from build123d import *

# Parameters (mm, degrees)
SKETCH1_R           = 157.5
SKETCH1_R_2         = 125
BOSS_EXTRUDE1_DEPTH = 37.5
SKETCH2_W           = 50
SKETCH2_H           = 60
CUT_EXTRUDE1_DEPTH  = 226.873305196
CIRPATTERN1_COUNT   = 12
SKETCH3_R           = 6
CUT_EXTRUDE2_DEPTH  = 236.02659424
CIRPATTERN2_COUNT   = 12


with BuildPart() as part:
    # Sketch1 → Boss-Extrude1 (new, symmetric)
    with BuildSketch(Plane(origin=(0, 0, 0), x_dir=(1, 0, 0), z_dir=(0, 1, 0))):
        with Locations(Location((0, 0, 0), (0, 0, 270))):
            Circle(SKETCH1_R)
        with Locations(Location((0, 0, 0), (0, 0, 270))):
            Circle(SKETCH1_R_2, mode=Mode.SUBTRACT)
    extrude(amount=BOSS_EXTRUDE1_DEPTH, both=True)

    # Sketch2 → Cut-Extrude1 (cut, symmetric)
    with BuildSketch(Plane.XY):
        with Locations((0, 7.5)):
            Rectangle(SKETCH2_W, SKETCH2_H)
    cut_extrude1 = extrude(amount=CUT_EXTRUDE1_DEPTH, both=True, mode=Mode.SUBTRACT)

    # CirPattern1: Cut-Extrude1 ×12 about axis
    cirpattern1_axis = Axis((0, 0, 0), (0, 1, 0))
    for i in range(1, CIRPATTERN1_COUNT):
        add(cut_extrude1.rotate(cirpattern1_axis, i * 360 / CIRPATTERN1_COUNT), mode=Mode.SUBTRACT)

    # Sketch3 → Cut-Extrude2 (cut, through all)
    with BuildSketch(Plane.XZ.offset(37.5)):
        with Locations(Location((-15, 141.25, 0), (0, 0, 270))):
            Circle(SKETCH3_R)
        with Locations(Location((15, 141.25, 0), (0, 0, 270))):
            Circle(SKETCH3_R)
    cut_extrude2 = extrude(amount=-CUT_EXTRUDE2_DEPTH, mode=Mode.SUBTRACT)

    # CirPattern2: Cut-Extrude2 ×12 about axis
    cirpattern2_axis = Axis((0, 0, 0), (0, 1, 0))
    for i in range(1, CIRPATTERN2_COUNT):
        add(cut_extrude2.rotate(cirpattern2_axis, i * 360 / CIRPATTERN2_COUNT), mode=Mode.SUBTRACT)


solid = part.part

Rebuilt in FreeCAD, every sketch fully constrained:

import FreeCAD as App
import Part
import Sketcher


def add_polygon(sketch, points):
    """Adds a closed chain of lines whose ends are joined by coincident constraints."""
    first, n = sketch.GeometryCount, len(points)
    for a, b in zip(points, points[1:] + points[:1]):
        sketch.addGeometry(Part.LineSegment(App.Vector(*a, 0), App.Vector(*b, 0)), False)
    for i in range(n):
        sketch.addConstraint(Sketcher.Constraint("Coincident", first + i, 2, first + (i + 1) % n, 1))

doc = App.newDocument("Part")
params = doc.addObject("Spreadsheet::Sheet", "Params")
for row, (alias, value) in enumerate([
    ("sketch1_diameter", "315 mm"),
    ("sketch1_diameter2", "250 mm"),
    ("pad1_length", "75 mm"),
    ("sketch2_width", "50 mm"),
    ("sketch2_height", "60 mm"),
    ("pocket1_length", "453.74661 mm"),
    ("sketch3_diameter", "12 mm"),
], start=1):
    params.set(f"A{row}", alias)
    params.set(f"B{row}", "=" + value)
    params.setAlias(f"B{row}", alias)

body = doc.addObject("PartDesign::Body", "Body")

sketch1 = doc.addObject("Sketcher::SketchObject", "Sketch")
body.addObject(sketch1)
sketch1.AttachmentSupport = (doc.XZ_Plane, [""])
sketch1.MapMode = "FlatFace"
sketch1.addGeometry(Part.Circle(App.Vector(0, 0, 0), App.Vector(0, 0, 1), 158), False)
sketch1.addGeometry(Part.Circle(App.Vector(0, 0, 0), App.Vector(0, 0, 1), 125), False)
sketch1.addConstraint(Sketcher.Constraint("Coincident", 0, 3, -1, 1))
sketch1.addConstraint(Sketcher.Constraint("Coincident", 1, 3, -1, 1))
sketch1.addConstraint(Sketcher.Constraint("Diameter", 0, 315.0))
sketch1.addConstraint(Sketcher.Constraint("Diameter", 1, 250.0))
sketch1.setExpression("Constraints[2]", "Params.sketch1_diameter")
sketch1.setExpression("Constraints[3]", "Params.sketch1_diameter2")
pad1 = doc.addObject("PartDesign::Pad", "Pad")
body.addObject(pad1)
pad1.Profile = sketch1
pad1.setExpression("Length", "Params.pad1_length")
pad1.Midplane = True

sketch2 = doc.addObject("Sketcher::SketchObject", "Sketch001")
body.addObject(sketch2)
sketch2.AttachmentSupport = (doc.XY_Plane, [""])
sketch2.MapMode = "FlatFace"
add_polygon(sketch2, [(-25, 38), (-25, -22), (25, -22), (25, 38)])
sketch2.addConstraint(Sketcher.Constraint("Vertical", 0))
sketch2.addConstraint(Sketcher.Constraint("Horizontal", 1))
sketch2.addConstraint(Sketcher.Constraint("Vertical", 2))
sketch2.addConstraint(Sketcher.Constraint("Horizontal", 3))
sketch2.addConstraint(Sketcher.Constraint("DistanceX", 1, 1, 1, 2, 50.0))
sketch2.addConstraint(Sketcher.Constraint("DistanceY", 0, 2, 0, 1, 60.0))
sketch2.addConstraint(Sketcher.Constraint("DistanceX", 0, 2, -1, 1, 25.0))
sketch2.addConstraint(Sketcher.Constraint("DistanceY", 0, 2, -1, 1, 22.5))
sketch2.setExpression("Constraints[8]", "Params.sketch2_width")
sketch2.setExpression("Constraints[9]", "Params.sketch2_height")
pocket1 = doc.addObject("PartDesign::Pocket", "Pocket")
body.addObject(pocket1)
pocket1.Profile = sketch2
pocket1.setExpression("Length", "Params.pocket1_length")
pocket1.Midplane = True
doc.recompute()

polarpattern = doc.addObject("PartDesign::PolarPattern", "PolarPattern")
body.addObject(polarpattern)
polarpattern.Originals = [pocket1]
polarpattern.Axis = (doc.Y_Axis, [""])
polarpattern.Angle = 360
polarpattern.Occurrences = 12
body.Tip = polarpattern

sketch3 = doc.addObject("Sketcher::SketchObject", "Sketch002")
body.addObject(sketch3)
sketch3.AttachmentSupport = (doc.XZ_Plane, [""])
sketch3.MapMode = "FlatFace"
sketch3.AttachmentOffset = App.Placement(App.Vector(0, 0, 37.5), App.Rotation())
sketch3.addGeometry(Part.Circle(App.Vector(-15, 141, 0), App.Vector(0, 0, 1), 6), False)
sketch3.addGeometry(Part.Circle(App.Vector(15, 141, 0), App.Vector(0, 0, 1), 6), False)
sketch3.addConstraint(Sketcher.Constraint("Equal", 0, 1))
sketch3.addConstraint(Sketcher.Constraint("Symmetric", 0, 3, 1, 3, -2))
sketch3.addConstraint(Sketcher.Constraint("Diameter", 0, 12.0))
sketch3.addConstraint(Sketcher.Constraint("DistanceX", 0, 3, -1, 1, 15.0))
sketch3.addConstraint(Sketcher.Constraint("DistanceY", -1, 1, 0, 3, 141.25))
sketch3.setExpression("Constraints[2]", "Params.sketch3_diameter")
pocket2 = doc.addObject("PartDesign::Pocket", "Pocket001")
body.addObject(pocket2)
pocket2.Profile = sketch3
pocket2.Type = "ThroughAll"
doc.recompute()

polarpattern2 = doc.addObject("PartDesign::PolarPattern", "PolarPattern001")
body.addObject(polarpattern2)
polarpattern2.Originals = [pocket2]
polarpattern2.Axis = (doc.Y_Axis, [""])
polarpattern2.Angle = 360
polarpattern2.Occurrences = 12
body.Tip = polarpattern2

doc.recompute()
